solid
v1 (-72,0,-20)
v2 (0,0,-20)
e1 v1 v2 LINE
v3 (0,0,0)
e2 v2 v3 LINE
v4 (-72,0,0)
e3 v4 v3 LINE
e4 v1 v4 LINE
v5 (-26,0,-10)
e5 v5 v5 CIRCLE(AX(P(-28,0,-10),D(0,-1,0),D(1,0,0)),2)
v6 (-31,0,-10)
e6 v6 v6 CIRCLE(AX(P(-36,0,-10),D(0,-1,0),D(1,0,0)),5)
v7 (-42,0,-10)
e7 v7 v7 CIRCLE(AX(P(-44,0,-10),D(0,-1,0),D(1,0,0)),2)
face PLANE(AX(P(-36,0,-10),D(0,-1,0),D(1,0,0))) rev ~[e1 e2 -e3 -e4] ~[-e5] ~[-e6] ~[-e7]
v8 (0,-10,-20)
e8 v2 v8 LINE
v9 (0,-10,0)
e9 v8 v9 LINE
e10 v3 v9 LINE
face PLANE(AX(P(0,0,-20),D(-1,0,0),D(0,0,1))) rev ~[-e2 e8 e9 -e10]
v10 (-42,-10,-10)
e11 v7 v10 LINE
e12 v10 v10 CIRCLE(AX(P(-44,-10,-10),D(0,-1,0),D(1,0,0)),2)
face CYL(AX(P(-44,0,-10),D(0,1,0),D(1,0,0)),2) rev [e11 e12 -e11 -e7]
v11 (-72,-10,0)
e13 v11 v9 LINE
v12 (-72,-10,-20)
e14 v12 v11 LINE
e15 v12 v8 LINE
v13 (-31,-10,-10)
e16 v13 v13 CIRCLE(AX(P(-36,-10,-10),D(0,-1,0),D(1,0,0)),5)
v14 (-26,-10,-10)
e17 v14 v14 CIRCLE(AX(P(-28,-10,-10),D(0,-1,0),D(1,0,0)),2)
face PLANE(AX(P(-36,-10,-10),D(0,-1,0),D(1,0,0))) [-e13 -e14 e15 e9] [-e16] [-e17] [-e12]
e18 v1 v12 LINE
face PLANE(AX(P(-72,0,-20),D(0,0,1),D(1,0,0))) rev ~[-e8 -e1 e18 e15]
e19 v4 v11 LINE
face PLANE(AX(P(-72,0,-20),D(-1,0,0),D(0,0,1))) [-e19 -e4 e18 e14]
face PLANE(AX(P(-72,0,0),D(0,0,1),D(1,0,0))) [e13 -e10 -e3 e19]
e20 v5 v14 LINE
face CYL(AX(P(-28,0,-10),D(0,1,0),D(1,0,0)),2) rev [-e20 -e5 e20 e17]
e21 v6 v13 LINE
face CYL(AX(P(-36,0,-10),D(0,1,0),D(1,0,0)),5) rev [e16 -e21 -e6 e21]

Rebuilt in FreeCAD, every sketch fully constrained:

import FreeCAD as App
import Part
import Sketcher
Q = App.Units.Quantity

doc = App.newDocument("Part")
body = doc.addObject("PartDesign::Body", "Body")

# Sketch on XZ plane
sketch1 = body.newObject("Sketcher::SketchObject", "Sketch")
sketch1.AttachmentSupport = (doc.getObject("XZ_Plane"), [""])
sketch1.MapMode = "FlatFace"
sketch1.addGeometry([
    Part.LineSegment(App.Vector(-72, 0, 0), App.Vector(-72, -20, 0)),  # 0
    Part.LineSegment(App.Vector(-72, -20, 0), App.Vector(0, -20, 0)),  # 1
    Part.LineSegment(App.Vector(0, -20, 0), App.Vector(0, 0, 0)),  # 2
    Part.LineSegment(App.Vector(0, 0, 0), App.Vector(-72, 0, 0)),  # 3
    Part.Circle(App.Vector(-44, -10, 0), App.Vector(0, 0, 1), 2),  # 4
    Part.Circle(App.Vector(-36, -10, 0), App.Vector(0, 0, 1), 5),  # 5
    Part.Circle(App.Vector(-28, -10, 0), App.Vector(0, 0, 1), 2),  # 6
], False)
sketch1.addConstraint([
    Sketcher.Constraint("Coincident", 0, 2, 1, 1),
    Sketcher.Constraint("Coincident", 1, 2, 2, 1),
    Sketcher.Constraint("Coincident", 2, 2, 3, 1),
    Sketcher.Constraint("Coincident", 3, 2, 0, 1),
    Sketcher.Constraint("Vertical", 0),
    Sketcher.Constraint("Horizontal", 1),
    Sketcher.Constraint("Vertical", 2),
    Sketcher.Constraint("Horizontal", 3),
    Sketcher.Constraint("Coincident", 2, 2, -1, 1),
    Sketcher.Constraint("Equal", 4, 6),
    Sketcher.Constraint("Horizontal", 4, 3, 5, 3),
    Sketcher.Constraint("Horizontal", 5, 3, 6, 3),
    Sketcher.Constraint("Diameter", 4, Q("4 mm")),
    Sketcher.Constraint("Diameter", 5, Q("10 mm")),
    Sketcher.Constraint("DistanceX", 1, 1, 1, 2, Q("72 mm")),
    Sketcher.Constraint("DistanceY", 0, 2, 0, 1, Q("20 mm")),
    Sketcher.Constraint("DistanceX", 4, 3, -1, 1, Q("44 mm")),
    Sketcher.Constraint("DistanceY", 4, 3, -1, 1, Q("10 mm")),
    Sketcher.Constraint("DistanceX", 5, 3, -1, 1, Q("36 mm")),
    Sketcher.Constraint("DistanceX", 6, 3, -1, 1, Q("28 mm")),
])
pad1 = body.newObject("PartDesign::Pad", "Pad")
pad1.Profile = sketch1
pad1.Length = 10

doc.recompute()
